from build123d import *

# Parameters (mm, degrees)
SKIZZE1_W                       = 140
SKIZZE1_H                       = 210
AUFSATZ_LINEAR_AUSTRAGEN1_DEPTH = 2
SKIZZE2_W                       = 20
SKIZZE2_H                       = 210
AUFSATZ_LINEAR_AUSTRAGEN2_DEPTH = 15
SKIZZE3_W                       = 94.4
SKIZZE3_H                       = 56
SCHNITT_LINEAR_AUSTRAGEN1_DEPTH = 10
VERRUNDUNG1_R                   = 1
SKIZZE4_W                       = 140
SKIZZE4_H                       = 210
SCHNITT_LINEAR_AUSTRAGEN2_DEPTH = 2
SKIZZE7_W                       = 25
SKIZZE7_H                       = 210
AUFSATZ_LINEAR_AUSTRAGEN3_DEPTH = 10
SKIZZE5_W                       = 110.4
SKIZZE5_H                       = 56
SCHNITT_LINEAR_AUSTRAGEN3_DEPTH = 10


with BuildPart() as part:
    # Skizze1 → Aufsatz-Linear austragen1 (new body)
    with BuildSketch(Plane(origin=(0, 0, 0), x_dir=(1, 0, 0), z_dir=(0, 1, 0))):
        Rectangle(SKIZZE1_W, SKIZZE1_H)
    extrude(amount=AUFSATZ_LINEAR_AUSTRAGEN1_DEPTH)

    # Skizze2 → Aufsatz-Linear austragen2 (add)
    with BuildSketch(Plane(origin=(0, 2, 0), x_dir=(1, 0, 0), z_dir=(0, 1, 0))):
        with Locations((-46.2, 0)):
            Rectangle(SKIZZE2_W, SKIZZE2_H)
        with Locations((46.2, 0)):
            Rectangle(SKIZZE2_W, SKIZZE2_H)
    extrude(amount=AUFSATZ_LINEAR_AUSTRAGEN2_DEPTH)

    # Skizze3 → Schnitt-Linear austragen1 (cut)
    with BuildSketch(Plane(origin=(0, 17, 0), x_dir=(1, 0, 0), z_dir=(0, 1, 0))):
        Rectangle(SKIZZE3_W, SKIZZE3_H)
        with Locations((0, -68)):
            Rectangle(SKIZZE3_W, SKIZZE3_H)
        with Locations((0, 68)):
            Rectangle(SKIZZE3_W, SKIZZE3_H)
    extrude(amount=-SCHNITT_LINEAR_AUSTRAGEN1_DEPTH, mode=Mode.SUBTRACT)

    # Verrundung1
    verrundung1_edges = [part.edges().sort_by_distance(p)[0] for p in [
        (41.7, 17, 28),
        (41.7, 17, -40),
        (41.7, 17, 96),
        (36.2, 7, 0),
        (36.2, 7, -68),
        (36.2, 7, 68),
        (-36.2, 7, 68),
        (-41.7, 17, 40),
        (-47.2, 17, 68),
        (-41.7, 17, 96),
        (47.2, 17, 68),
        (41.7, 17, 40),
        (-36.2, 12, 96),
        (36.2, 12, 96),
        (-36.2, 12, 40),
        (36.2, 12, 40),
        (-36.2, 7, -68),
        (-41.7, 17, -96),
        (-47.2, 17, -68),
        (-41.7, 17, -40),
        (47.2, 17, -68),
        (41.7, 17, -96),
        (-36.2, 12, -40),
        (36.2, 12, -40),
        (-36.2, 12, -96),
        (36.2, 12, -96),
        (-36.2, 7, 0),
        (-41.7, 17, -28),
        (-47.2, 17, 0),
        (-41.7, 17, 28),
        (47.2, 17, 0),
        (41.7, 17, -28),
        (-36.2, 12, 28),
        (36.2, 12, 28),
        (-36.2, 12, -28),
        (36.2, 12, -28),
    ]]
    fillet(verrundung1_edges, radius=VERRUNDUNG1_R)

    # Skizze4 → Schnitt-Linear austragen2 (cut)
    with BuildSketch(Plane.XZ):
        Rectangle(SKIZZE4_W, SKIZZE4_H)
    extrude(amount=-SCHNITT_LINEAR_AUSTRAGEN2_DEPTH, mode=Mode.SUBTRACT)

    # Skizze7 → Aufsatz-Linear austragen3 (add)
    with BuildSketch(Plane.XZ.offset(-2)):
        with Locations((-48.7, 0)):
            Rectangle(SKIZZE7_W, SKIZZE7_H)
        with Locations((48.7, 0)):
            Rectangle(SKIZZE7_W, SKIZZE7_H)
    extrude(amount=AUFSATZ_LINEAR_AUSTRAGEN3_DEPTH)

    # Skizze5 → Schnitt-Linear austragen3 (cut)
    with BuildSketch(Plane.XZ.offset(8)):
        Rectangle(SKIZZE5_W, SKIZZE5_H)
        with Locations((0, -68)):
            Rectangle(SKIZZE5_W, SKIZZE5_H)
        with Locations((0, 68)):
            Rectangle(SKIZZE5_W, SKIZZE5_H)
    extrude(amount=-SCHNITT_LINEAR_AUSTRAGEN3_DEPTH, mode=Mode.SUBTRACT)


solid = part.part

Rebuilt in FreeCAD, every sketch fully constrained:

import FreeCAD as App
import Part
import Sketcher
from FreeCAD import Vector


def edges_at(feature, points):
    """Names of the edges that pass closest to the given points."""
    edges = feature.Shape.Edges
    near = lambda p: min(range(len(edges)), key=lambda i: edges[i].distToShape(Part.Vertex(*p))[0])
    return sorted({f"Edge{near(p) + 1}" for p in points})

doc = App.newDocument("Part")
body = doc.addObject("PartDesign::Body", "Body")
body.AllowCompound = True

# Sketch on XZ plane
sketch1 = body.newObject("Sketcher::SketchObject", "Sketch")
sketch1.AttachmentSupport = (doc.getObject("XZ_Plane"), [""])
sketch1.MapMode = "FlatFace"
sketch1.addGeometry(Part.LineSegment(Vector(-70, -105, 0), Vector(-70, 105, 0)), False)
sketch1.addGeometry(Part.LineSegment(Vector(-70, 105, 0), Vector(70, 105, 0)), False)
sketch1.addGeometry(Part.LineSegment(Vector(70, 105, 0), Vector(70, -105, 0)), False)
sketch1.addGeometry(Part.LineSegment(Vector(70, -105, 0), Vector(-70, -105, 0)), False)
sketch1.addConstraint(Sketcher.Constraint("Coincident", 0, 2, 1, 1))
sketch1.addConstraint(Sketcher.Constraint("Coincident", 1, 2, 2, 1))
sketch1.addConstraint(Sketcher.Constraint("Coincident", 2, 2, 3, 1))
sketch1.addConstraint(Sketcher.Constraint("Coincident", 3, 2, 0, 1))
sketch1.addConstraint(Sketcher.Constraint("Vertical", 0))
sketch1.addConstraint(Sketcher.Constraint("Horizontal", 1))
sketch1.addConstraint(Sketcher.Constraint("Vertical", 2))
sketch1.addConstraint(Sketcher.Constraint("Horizontal", 3))
sketch1.addConstraint(Sketcher.Constraint("Symmetric", 0, 2, 2, 2, -1, 1))
sketch1.addConstraint(Sketcher.Constraint("DistanceX", 1, 1, 1, 2, 140.0))
sketch1.addConstraint(Sketcher.Constraint("DistanceY", 0, 1, 0, 2, 210.0))
pad1 = body.newObject("PartDesign::Pad", "Pad")
pad1.Profile = sketch1
pad1.Length = 2
pad1.Reversed = True

# Sketch on XZ plane
sketch2 = body.newObject("Sketcher::SketchObject", "Sketch001")
sketch2.AttachmentSupport = (doc.getObject("XZ_Plane"), [""])
sketch2.MapMode = "FlatFace"
sketch2.AttachmentOffset = App.Placement(Vector(0, 0, -2), App.Rotation())
sketch2.addGeometry(Part.LineSegment(Vector(-56.2, -105, 0), Vector(-56.2, 105, 0)), False)
sketch2.addGeometry(Part.LineSegment(Vector(-56.2, 105, 0), Vector(-36.2, 105, 0)), False)
sketch2.addGeometry(Part.LineSegment(Vector(-36.2, 105, 0), Vector(-36.2, -105, 0)), False)
sketch2.addGeometry(Part.LineSegment(Vector(-36.2, -105, 0), Vector(-56.2, -105, 0)), False)
sketch2.addGeometry(Part.LineSegment(Vector(36.2, -105, 0), Vector(36.2, 105, 0)), False)
sketch2.addGeometry(Part.LineSegment(Vector(36.2, 105, 0), Vector(56.2, 105, 0)), False)
sketch2.addGeometry(Part.LineSegment(Vector(56.2, 105, 0), Vector(56.2, -105, 0)), False)
sketch2.addGeometry(Part.LineSegment(Vector(56.2, -105, 0), Vector(36.2, -105, 0)), False)
sketch2.addConstraint(Sketcher.Constraint("Coincident", 0, 2, 1, 1))
sketch2.addConstraint(Sketcher.Constraint("Coincident", 1, 2, 2, 1))
sketch2.addConstraint(Sketcher.Constraint("Coincident", 2, 2, 3, 1))
sketch2.addConstraint(Sketcher.Constraint("Coincident", 3, 2, 0, 1))
sketch2.addConstraint(Sketcher.Constraint("Coincident", 4, 2, 5, 1))
sketch2.addConstraint(Sketcher.Constraint("Coincident", 5, 2, 6, 1))
sketch2.addConstraint(Sketcher.Constraint("Coincident", 6, 2, 7, 1))
sketch2.addConstraint(Sketcher.Constraint("Coincident", 7, 2, 4, 1))
sketch2.addConstraint(Sketcher.Constraint("Vertical", 0))
sketch2.addConstraint(Sketcher.Constraint("Horizontal", 1))
sketch2.addConstraint(Sketcher.Constraint("Vertical", 2))
sketch2.addConstraint(Sketcher.Constraint("Horizontal", 3))
sketch2.addConstraint(Sketcher.Constraint("Vertical", 4))
sketch2.addConstraint(Sketcher.Constraint("Horizontal", 5))
sketch2.addConstraint(Sketcher.Constraint("Vertical", 6))
sketch2.addConstraint(Sketcher.Constraint("Horizontal", 7))
sketch2.addConstraint(Sketcher.Constraint("Symmetric", 2, 2, 4, 2, -1, 1))
sketch2.addConstraint(Sketcher.Constraint("Symmetric", 0, 2, 6, 2, -1, 1))
sketch2.addConstraint(Sketcher.Constraint("Horizontal", 1, 2, 4, 2))
sketch2.addConstraint(Sketcher.Constraint("DistanceX", 1, 1, 1, 2, 20.0))
sketch2.addConstraint(Sketcher.Constraint("DistanceY", 0, 1, 0, 2, 210.0))
sketch2.addConstraint(Sketcher.Constraint("DistanceX", 0, 2, -1, 1, 56.2))
pad2 = body.newObject("PartDesign::Pad", "Pad001")
pad2.Profile = sketch2
pad2.Length = 15
pad2.Reversed = True

# Sketch on XZ plane
sketch3 = body.newObject("Sketcher::SketchObject", "Sketch002")
sketch3.AttachmentSupport = (doc.getObject("XZ_Plane"), [""])
sketch3.MapMode = "FlatFace"
sketch3.AttachmentOffset = App.Placement(Vector(0, 0, -17), App.Rotation())
sketch3.addGeometry(Part.LineSegment(Vector(-47.2, -28, 0), Vector(-47.2, 28, 0)), False)
sketch3.addGeometry(Part.LineSegment(Vector(-47.2, 28, 0), Vector(47.2, 28, 0)), False)
sketch3.addGeometry(Part.LineSegment(Vector(47.2, 28, 0), Vector(47.2, -28, 0)), False)
sketch3.addGeometry(Part.LineSegment(Vector(47.2, -28, 0), Vector(-47.2, -28, 0)), False)
sketch3.addGeometry(Part.LineSegment(Vector(-47.2, 40, 0), Vector(-47.2, 96, 0)), False)
sketch3.addGeometry(Part.LineSegment(Vector(-47.2, 96, 0), Vector(47.2, 96, 0)), False)
sketch3.addGeometry(Part.LineSegment(Vector(47.2, 96, 0), Vector(47.2, 40, 0)), False)
sketch3.addGeometry(Part.LineSegment(Vector(47.2, 40, 0), Vector(-47.2, 40, 0)), False)
sketch3.addGeometry(Part.LineSegment(Vector(-47.2, -96, 0), Vector(-47.2, -40, 0)), False)
sketch3.addGeometry(Part.LineSegment(Vector(-47.2, -40, 0), Vector(47.2, -40, 0)), False)
sketch3.addGeometry(Part.LineSegment(Vector(47.2, -40, 0), Vector(47.2, -96, 0)), False)
sketch3.addGeometry(Part.LineSegment(Vector(47.2, -96, 0), Vector(-47.2, -96, 0)), False)
sketch3.addConstraint(Sketcher.Constraint("Coincident", 0, 2, 1, 1))
sketch3.addConstraint(Sketcher.Constraint("Coincident", 1, 2, 2, 1))
sketch3.addConstraint(Sketcher.Constraint("Coincident", 2, 2, 3, 1))
sketch3.addConstraint(Sketcher.Constraint("Coincident", 3, 2, 0, 1))
sketch3.addConstraint(Sketcher.Constraint("Coincident", 4, 2, 5, 1))
sketch3.addConstraint(Sketcher.Constraint("Coincident", 5, 2, 6, 1))
sketch3.addConstraint(Sketcher.Constraint("Coincident", 6, 2, 7, 1))
sketch3.addConstraint(Sketcher.Constraint("Coincident", 7, 2, 4, 1))
sketch3.addConstraint(Sketcher.Constraint("Coincident", 8, 2, 9, 1))
sketch3.addConstraint(Sketcher.Constraint("Coincident", 9, 2, 10, 1))
sketch3.addConstraint(Sketcher.Constraint("Coincident", 10, 2, 11, 1))
sketch3.addConstraint(Sketcher.Constraint("Coincident", 11, 2, 8, 1))
sketch3.addConstraint(Sketcher.Constraint("Vertical", 0))
sketch3.addConstraint(Sketcher.Constraint("Horizontal", 1))
sketch3.addConstraint(Sketcher.Constraint("Vertical", 2))
sketch3.addConstraint(Sketcher.Constraint("Horizontal", 3))
sketch3.addConstraint(Sketcher.Constraint("Vertical", 4))
sketch3.addConstraint(Sketcher.Constraint("Horizontal", 5))
sketch3.addConstraint(Sketcher.Constraint("Vertical", 6))
sketch3.addConstraint(Sketcher.Constraint("Horizontal", 7))
sketch3.addConstraint(Sketcher.Constraint("Vertical", 8))
sketch3.addConstraint(Sketcher.Constraint("Horizontal", 9))
sketch3.addConstraint(Sketcher.Constraint("Vertical", 10))
sketch3.addConstraint(Sketcher.Constraint("Horizontal", 11))
sketch3.addConstraint(Sketcher.Constraint("Symmetric", 0, 2, 2, 2, -1, 1))
sketch3.addConstraint(Sketcher.Constraint("Symmetric", 6, 2, 8, 2, -1, 1))
sketch3.addConstraint(Sketcher.Constraint("Symmetric", 4, 2, 10, 2, -1, 1))
sketch3.addConstraint(Sketcher.Constraint("Vertical", 3, 2, 4, 2))
sketch3.addConstraint(Sketcher.Constraint("Vertical", 2, 2, 5, 2))
sketch3.addConstraint(Sketcher.Constraint("Equal", 2, 4))
sketch3.addConstraint(Sketcher.Constraint("DistanceY", 0, 1, 0, 2, 56.0))
sketch3.addConstraint(Sketcher.Constraint("DistanceX", 1, 1, 1, 2, 94.4))
sketch3.addConstraint(Sketcher.Constraint("DistanceY", -1, 1, 4, 2, 96.0))
pocket1 = body.newObject("PartDesign::Pocket", "Pocket")
pocket1.Profile = sketch3
pocket1.Length = 10
pocket1.Reversed = True
doc.recompute()

fillet = body.newObject("PartDesign::Fillet", "Fillet")
fillet.Base = (pocket1, edges_at(pocket1, [
    (41.7, 17, 28),
    (41.7, 17, -40),
    (41.7, 17, 96),
    (36.2, 7, 0),
    (36.2, 7, -68),
    (36.2, 7, 68),
    (-36.2, 7, 68),
    (-41.7, 17, 40),
    (-47.2, 17, 68),
    (-41.7, 17, 96),
    (47.2, 17, 68),
    (41.7, 17, 40),
    (-36.2, 12, 96),
    (36.2, 12, 96),
    (-36.2, 12, 40),
    (36.2, 12, 40),
    (-36.2, 7, -68),
    (-41.7, 17, -96),
    (-47.2, 17, -68),
    (-41.7, 17, -40),
    (47.2, 17, -68),
    (41.7, 17, -96),
    (-36.2, 12, -40),
    (36.2, 12, -40),
    (-36.2, 12, -96),
    (36.2, 12, -96),
    (-36.2, 7, 0),
    (-41.7, 17, -28),
    (-47.2, 17, 0),
    (-41.7, 17, 28),
    (47.2, 17, 0),
    (41.7, 17, -28),
    (-36.2, 12, 28),
    (36.2, 12, 28),
    (-36.2, 12, -28),
    (36.2, 12, -28),
]))
fillet.Radius = 1

# Sketch on XZ plane
sketch4 = body.newObject("Sketcher::SketchObject", "Sketch003")
sketch4.AttachmentSupport = (doc.getObject("XZ_Plane"), [""])
sketch4.MapMode = "FlatFace"
sketch4.addGeometry(Part.LineSegment(Vector(-70, 105, 0), Vector(-70, -105, 0)), False)
sketch4.addGeometry(Part.LineSegment(Vector(-70, -105, 0), Vector(70, -105, 0)), False)
sketch4.addGeometry(Part.LineSegment(Vector(70, -105, 0), Vector(70, 105, 0)), False)
sketch4.addGeometry(Part.LineSegment(Vector(70, 105, 0), Vector(-70, 105, 0)), False)
sketch4.addConstraint(Sketcher.Constraint("Coincident", 0, 2, 1, 1))
sketch4.addConstraint(Sketcher.Constraint("Coincident", 1, 2, 2, 1))
sketch4.addConstraint(Sketcher.Constraint("Coincident", 2, 2, 3, 1))
sketch4.addConstraint(Sketcher.Constraint("Coincident", 3, 2, 0, 1))
sketch4.addConstraint(Sketcher.Constraint("Vertical", 0))
sketch4.addConstraint(Sketcher.Constraint("Horizontal", 1))
sketch4.addConstraint(Sketcher.Constraint("Vertical", 2))
sketch4.addConstraint(Sketcher.Constraint("Horizontal", 3))
sketch4.addConstraint(Sketcher.Constraint("Symmetric", 0, 2, 2, 2, -1, 1))
sketch4.addConstraint(Sketcher.Constraint("DistanceX", 1, 1, 1, 2, 140.0))
sketch4.addConstraint(Sketcher.Constraint("DistanceY", 0, 2, 0, 1, 210.0))
pocket2 = body.newObject("PartDesign::Pocket", "Pocket001")
pocket2.Profile = sketch4
pocket2.Length = 2

# Sketch on XZ plane
sketch5 = body.newObject("Sketcher::SketchObject", "Sketch004")
sketch5.AttachmentSupport = (doc.getObject("XZ_Plane"), [""])
sketch5.MapMode = "FlatFace"
sketch5.AttachmentOffset = App.Placement(Vector(0, 0, -2), App.Rotation())
sketch5.addGeometry(Part.LineSegment(Vector(-61.2, 105, 0), Vector(-61.2, -105, 0)), False)
sketch5.addGeometry(Part.LineSegment(Vector(-61.2, -105, 0), Vector(-36.2, -105, 0)), False)
sketch5.addGeometry(Part.LineSegment(Vector(-36.2, -105, 0), Vector(-36.2, 105, 0)), False)
sketch5.addGeometry(Part.LineSegment(Vector(-36.2, 105, 0), Vector(-61.2, 105, 0)), False)
sketch5.addGeometry(Part.LineSegment(Vector(36.2, 105, 0), Vector(36.2, -105, 0)), False)
sketch5.addGeometry(Part.LineSegment(Vector(36.2, -105, 0), Vector(61.2, -105, 0)), False)
sketch5.addGeometry(Part.LineSegment(Vector(61.2, -105, 0), Vector(61.2, 105, 0)), False)
sketch5.addGeometry(Part.LineSegment(Vector(61.2, 105, 0), Vector(36.2, 105, 0)), False)
sketch5.addConstraint(Sketcher.Constraint("Coincident", 0, 2, 1, 1))
sketch5.addConstraint(Sketcher.Constraint("Coincident", 1, 2, 2, 1))
sketch5.addConstraint(Sketcher.Constraint("Coincident", 2, 2, 3, 1))
sketch5.addConstraint(Sketcher.Constraint("Coincident", 3, 2, 0, 1))
sketch5.addConstraint(Sketcher.Constraint("Coincident", 4, 2, 5, 1))
sketch5.addConstraint(Sketcher.Constraint("Coincident", 5, 2, 6, 1))
sketch5.addConstraint(Sketcher.Constraint("Coincident", 6, 2, 7, 1))
sketch5.addConstraint(Sketcher.Constraint("Coincident", 7, 2, 4, 1))
sketch5.addConstraint(Sketcher.Constraint("Vertical", 0))
sketch5.addConstraint(Sketcher.Constraint("Horizontal", 1))
sketch5.addConstraint(Sketcher.Constraint("Vertical", 2))
sketch5.addConstraint(Sketcher.Constraint("Horizontal", 3))
sketch5.addConstraint(Sketcher.Constraint("Vertical", 4))
sketch5.addConstraint(Sketcher.Constraint("Horizontal", 5))
sketch5.addConstraint(Sketcher.Constraint("Vertical", 6))
sketch5.addConstraint(Sketcher.Constraint("Horizontal", 7))
sketch5.addConstraint(Sketcher.Constraint("Symmetric", 2, 2, 4, 2, -1, 1))
sketch5.addConstraint(Sketcher.Constraint("Symmetric", 0, 2, 6, 2, -1, 1))
sketch5.addConstraint(Sketcher.Constraint("Horizontal", 1, 2, 4, 2))
sketch5.addConstraint(Sketcher.Constraint("DistanceX", 1, 1, 1, 2, 25.0))
sketch5.addConstraint(Sketcher.Constraint("DistanceY", 0, 2, 0, 1, 210.0))
sketch5.addConstraint(Sketcher.Constraint("DistanceX", 0, 2, -1, 1, 61.2))
pad3 = body.newObject("PartDesign::Pad", "Pad002")
pad3.Profile = sketch5
pad3.Length = 10

# Sketch on XZ plane
sketch6 = body.newObject("Sketcher::SketchObject", "Sketch005")
sketch6.AttachmentSupport = (doc.getObject("XZ_Plane"), [""])
sketch6.MapMode = "FlatFace"
sketch6.AttachmentOffset = App.Placement(Vector(0, 0, 8), App.Rotation())
sketch6.addGeometry(Part.LineSegment(Vector(-55.2, 28, 0), Vector(-55.2, -28, 0)), False)
sketch6.addGeometry(Part.LineSegment(Vector(-55.2, -28, 0), Vector(55.2, -28, 0)), False)
sketch6.addGeometry(Part.LineSegment(Vector(55.2, -28, 0), Vector(55.2, 28, 0)), False)
sketch6.addGeometry(Part.LineSegment(Vector(55.2, 28, 0), Vector(-55.2, 28, 0)), False)
sketch6.addGeometry(Part.LineSegment(Vector(-55.2, -40, 0), Vector(-55.2, -96, 0)), False)
sketch6.addGeometry(Part.LineSegment(Vector(-55.2, -96, 0), Vector(55.2, -96, 0)), False)
sketch6.addGeometry(Part.LineSegment(Vector(55.2, -96, 0), Vector(55.2, -40, 0)), False)
sketch6.addGeometry(Part.LineSegment(Vector(55.2, -40, 0), Vector(-55.2, -40, 0)), False)
sketch6.addGeometry(Part.LineSegment(Vector(-55.2, 96, 0), Vector(-55.2, 40, 0)), False)
sketch6.addGeometry(Part.LineSegment(Vector(-55.2, 40, 0), Vector(55.2, 40, 0)), False)
sketch6.addGeometry(Part.LineSegment(Vector(55.2, 40, 0), Vector(55.2, 96, 0)), False)
sketch6.addGeometry(Part.LineSegment(Vector(55.2, 96, 0), Vector(-55.2, 96, 0)), False)
sketch6.addConstraint(Sketcher.Constraint("Coincident", 0, 2, 1, 1))
sketch6.addConstraint(Sketcher.Constraint("Coincident", 1, 2, 2, 1))
sketch6.addConstraint(Sketcher.Constraint("Coincident", 2, 2, 3, 1))
sketch6.addConstraint(Sketcher.Constraint("Coincident", 3, 2, 0, 1))
sketch6.addConstraint(Sketcher.Constraint("Coincident", 4, 2, 5, 1))
sketch6.addConstraint(Sketcher.Constraint("Coincident", 5, 2, 6, 1))
sketch6.addConstraint(Sketcher.Constraint("Coincident", 6, 2, 7, 1))
sketch6.addConstraint(Sketcher.Constraint("Coincident", 7, 2, 4, 1))
sketch6.addConstraint(Sketcher.Constraint("Coincident", 8, 2, 9, 1))
sketch6.addConstraint(Sketcher.Constraint("Coincident", 9, 2, 10, 1))
sketch6.addConstraint(Sketcher.Constraint("Coincident", 10, 2, 11, 1))
sketch6.addConstraint(Sketcher.Constraint("Coincident", 11, 2, 8, 1))
sketch6.addConstraint(Sketcher.Constraint("Vertical", 0))
sketch6.addConstraint(Sketcher.Constraint("Horizontal", 1))
sketch6.addConstraint(Sketcher.Constraint("Vertical", 2))
sketch6.addConstraint(Sketcher.Constraint("Horizontal", 3))
sketch6.addConstraint(Sketcher.Constraint("Vertical", 4))
sketch6.addConstraint(Sketcher.Constraint("Horizontal", 5))
sketch6.addConstraint(Sketcher.Constraint("Vertical", 6))
sketch6.addConstraint(Sketcher.Constraint("Horizontal", 7))
sketch6.addConstraint(Sketcher.Constraint("Vertical", 8))
sketch6.addConstraint(Sketcher.Constraint("Horizontal", 9))
sketch6.addConstraint(Sketcher.Constraint("Vertical", 10))
sketch6.addConstraint(Sketcher.Constraint("Horizontal", 11))
sketch6.addConstraint(Sketcher.Constraint("Symmetric", 0, 2, 2, 2, -1, 1))
sketch6.addConstraint(Sketcher.Constraint("Symmetric", 6, 2, 8, 2, -1, 1))
sketch6.addConstraint(Sketcher.Constraint("Symmetric", 4, 2, 10, 2, -1, 1))
sketch6.addConstraint(Sketcher.Constraint("Vertical", 3, 2, 4, 2))
sketch6.addConstraint(Sketcher.Constraint("Vertical", 2, 2, 5, 2))
sketch6.addConstraint(Sketcher.Constraint("Equal", 2, 4))
sketch6.addConstraint(Sketcher.Constraint("DistanceY", 0, 2, 0, 1, 56.0))
sketch6.addConstraint(Sketcher.Constraint("DistanceX", 1, 1, 1, 2, 110.4))
sketch6.addConstraint(Sketcher.Constraint("DistanceY", 4, 2, -1, 1, 96.0))
pocket3 = body.newObject("PartDesign::Pocket", "Pocket002")
pocket3.Profile = sketch6
pocket3.Length = 10

doc.recompute()
